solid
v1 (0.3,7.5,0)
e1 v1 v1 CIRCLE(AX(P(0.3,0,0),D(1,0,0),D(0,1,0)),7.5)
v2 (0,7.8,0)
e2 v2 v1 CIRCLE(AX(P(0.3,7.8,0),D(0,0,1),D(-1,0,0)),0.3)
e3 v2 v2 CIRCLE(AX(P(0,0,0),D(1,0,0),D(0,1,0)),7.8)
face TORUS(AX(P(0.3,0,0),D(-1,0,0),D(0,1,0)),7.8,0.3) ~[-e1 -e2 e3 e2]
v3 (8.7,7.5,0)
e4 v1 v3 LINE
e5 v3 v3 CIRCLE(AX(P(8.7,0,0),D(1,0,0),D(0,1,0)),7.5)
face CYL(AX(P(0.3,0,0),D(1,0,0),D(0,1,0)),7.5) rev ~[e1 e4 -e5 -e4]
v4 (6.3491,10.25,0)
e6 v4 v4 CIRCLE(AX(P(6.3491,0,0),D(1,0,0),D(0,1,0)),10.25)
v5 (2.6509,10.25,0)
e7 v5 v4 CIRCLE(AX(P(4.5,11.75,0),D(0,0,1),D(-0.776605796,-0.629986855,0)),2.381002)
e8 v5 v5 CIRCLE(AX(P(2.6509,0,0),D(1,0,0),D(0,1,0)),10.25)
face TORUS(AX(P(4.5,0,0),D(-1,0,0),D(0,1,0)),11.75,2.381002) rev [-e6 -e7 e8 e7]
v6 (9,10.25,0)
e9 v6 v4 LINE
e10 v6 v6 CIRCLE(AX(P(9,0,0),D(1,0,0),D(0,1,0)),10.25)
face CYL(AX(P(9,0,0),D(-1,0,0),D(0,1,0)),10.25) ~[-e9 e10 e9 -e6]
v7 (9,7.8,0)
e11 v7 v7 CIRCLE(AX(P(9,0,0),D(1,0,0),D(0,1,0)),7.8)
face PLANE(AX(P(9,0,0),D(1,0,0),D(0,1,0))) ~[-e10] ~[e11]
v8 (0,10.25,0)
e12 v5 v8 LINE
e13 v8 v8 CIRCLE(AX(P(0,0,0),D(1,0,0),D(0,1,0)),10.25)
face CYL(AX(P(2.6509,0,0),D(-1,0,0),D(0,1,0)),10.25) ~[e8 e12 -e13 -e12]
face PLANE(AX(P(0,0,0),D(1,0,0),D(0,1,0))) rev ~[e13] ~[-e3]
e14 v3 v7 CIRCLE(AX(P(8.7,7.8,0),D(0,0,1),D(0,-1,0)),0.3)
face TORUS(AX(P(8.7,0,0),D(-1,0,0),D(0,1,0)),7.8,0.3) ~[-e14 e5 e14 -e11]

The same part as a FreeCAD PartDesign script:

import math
import FreeCAD as App
import Part
import Sketcher

V = App.Vector
Q = App.Units.Quantity

doc = App.newDocument("Part")
body = doc.addObject("PartDesign::Body", "Body")

# Sketch on XY plane
sketch1 = body.newObject("Sketcher::SketchObject", "Sketch")
sketch1.AttachmentSupport = (doc.getObject("XY_Plane"), [""])
sketch1.MapMode = "FlatFace"
sketch1.addGeometry(Part.LineSegment(V(0, 10.25, 0), V(0, 7.8, 0)), False)
sketch1.addGeometry(Part.ArcOfCircle(Part.Circle(V(0.3, 7.8, 0), V(0, 0, 1), 0.3), math.radians(180), math.radians(270)), False)
sketch1.addGeometry(Part.LineSegment(V(0.3, 7.5, 0), V(8.7, 7.5, 0)), False)
sketch1.addGeometry(Part.ArcOfCircle(Part.Circle(V(8.7, 7.8, 0), V(0, 0, 1), 0.3), math.radians(-90), math.radians(0)), False)
sketch1.addGeometry(Part.LineSegment(V(9, 7.8, 0), V(9, 10.25, 0)), False)
sketch1.addGeometry(Part.LineSegment(V(9, 10.25, 0), V(6.35, 10.25, 0)), False)
sketch1.addGeometry(Part.ArcOfCircle(Part.Circle(V(4.5, 11.75, 0), V(0, 0, 1), 2.38), math.radians(-141), math.radians(-39)), False)
sketch1.addGeometry(Part.LineSegment(V(2.65, 10.25, 0), V(0, 10.25, 0)), False)
sketch1.addConstraint(Sketcher.Constraint("Tangent", 0, 2, 1, 1))
sketch1.addConstraint(Sketcher.Constraint("Tangent", 1, 2, 2, 1))
sketch1.addConstraint(Sketcher.Constraint("Tangent", 2, 2, 3, 1))
sketch1.addConstraint(Sketcher.Constraint("Tangent", 3, 2, 4, 1))
sketch1.addConstraint(Sketcher.Constraint("Coincident", 4, 2, 5, 1))
sketch1.addConstraint(Sketcher.Constraint("Coincident", 5, 2, 6, 2))
sketch1.addConstraint(Sketcher.Constraint("Coincident", 6, 1, 7, 1))
sketch1.addConstraint(Sketcher.Constraint("Coincident", 7, 2, 0, 1))
sketch1.addConstraint(Sketcher.Constraint("Vertical", 0))
sketch1.addConstraint(Sketcher.Constraint("Horizontal", 2))
sketch1.addConstraint(Sketcher.Constraint("Vertical", 4))
sketch1.addConstraint(Sketcher.Constraint("Horizontal", 5))
sketch1.addConstraint(Sketcher.Constraint("Horizontal", 7))
sketch1.addConstraint(Sketcher.Constraint("Equal", 1, 3))
sketch1.addConstraint(Sketcher.Constraint("PointOnObject", 0, 2, -2))
sketch1.addConstraint(Sketcher.Constraint("Horizontal", 5, 2, 6, 1))
sketch1.addConstraint(Sketcher.Constraint("Equal", 5, 7))
sketch1.addConstraint(Sketcher.Constraint("Radius", 1, Q("0.3 mm")))
sketch1.addConstraint(Sketcher.Constraint("DistanceX", 2, 1, 2, 2, Q("8.4 mm")))
sketch1.addConstraint(Sketcher.Constraint("Radius", 6, Q("2.381 mm")))
sketch1.addConstraint(Sketcher.Constraint("DistanceY", 0, 2, 0, 1, Q("2.45 mm")))
sketch1.addConstraint(Sketcher.Constraint("DistanceY", -1, 1, 1, 3, Q("7.8 mm")))
sketch1.addConstraint(Sketcher.Constraint("DistanceY", 4, 2, 6, 3, Q("1.5 mm")))
revolution = body.newObject("PartDesign::Revolution", "Revolution")
revolution.Profile = sketch1
revolution.ReferenceAxis = (sketch1, ["H_Axis"])
revolution.Angle = 360

doc.recompute()
